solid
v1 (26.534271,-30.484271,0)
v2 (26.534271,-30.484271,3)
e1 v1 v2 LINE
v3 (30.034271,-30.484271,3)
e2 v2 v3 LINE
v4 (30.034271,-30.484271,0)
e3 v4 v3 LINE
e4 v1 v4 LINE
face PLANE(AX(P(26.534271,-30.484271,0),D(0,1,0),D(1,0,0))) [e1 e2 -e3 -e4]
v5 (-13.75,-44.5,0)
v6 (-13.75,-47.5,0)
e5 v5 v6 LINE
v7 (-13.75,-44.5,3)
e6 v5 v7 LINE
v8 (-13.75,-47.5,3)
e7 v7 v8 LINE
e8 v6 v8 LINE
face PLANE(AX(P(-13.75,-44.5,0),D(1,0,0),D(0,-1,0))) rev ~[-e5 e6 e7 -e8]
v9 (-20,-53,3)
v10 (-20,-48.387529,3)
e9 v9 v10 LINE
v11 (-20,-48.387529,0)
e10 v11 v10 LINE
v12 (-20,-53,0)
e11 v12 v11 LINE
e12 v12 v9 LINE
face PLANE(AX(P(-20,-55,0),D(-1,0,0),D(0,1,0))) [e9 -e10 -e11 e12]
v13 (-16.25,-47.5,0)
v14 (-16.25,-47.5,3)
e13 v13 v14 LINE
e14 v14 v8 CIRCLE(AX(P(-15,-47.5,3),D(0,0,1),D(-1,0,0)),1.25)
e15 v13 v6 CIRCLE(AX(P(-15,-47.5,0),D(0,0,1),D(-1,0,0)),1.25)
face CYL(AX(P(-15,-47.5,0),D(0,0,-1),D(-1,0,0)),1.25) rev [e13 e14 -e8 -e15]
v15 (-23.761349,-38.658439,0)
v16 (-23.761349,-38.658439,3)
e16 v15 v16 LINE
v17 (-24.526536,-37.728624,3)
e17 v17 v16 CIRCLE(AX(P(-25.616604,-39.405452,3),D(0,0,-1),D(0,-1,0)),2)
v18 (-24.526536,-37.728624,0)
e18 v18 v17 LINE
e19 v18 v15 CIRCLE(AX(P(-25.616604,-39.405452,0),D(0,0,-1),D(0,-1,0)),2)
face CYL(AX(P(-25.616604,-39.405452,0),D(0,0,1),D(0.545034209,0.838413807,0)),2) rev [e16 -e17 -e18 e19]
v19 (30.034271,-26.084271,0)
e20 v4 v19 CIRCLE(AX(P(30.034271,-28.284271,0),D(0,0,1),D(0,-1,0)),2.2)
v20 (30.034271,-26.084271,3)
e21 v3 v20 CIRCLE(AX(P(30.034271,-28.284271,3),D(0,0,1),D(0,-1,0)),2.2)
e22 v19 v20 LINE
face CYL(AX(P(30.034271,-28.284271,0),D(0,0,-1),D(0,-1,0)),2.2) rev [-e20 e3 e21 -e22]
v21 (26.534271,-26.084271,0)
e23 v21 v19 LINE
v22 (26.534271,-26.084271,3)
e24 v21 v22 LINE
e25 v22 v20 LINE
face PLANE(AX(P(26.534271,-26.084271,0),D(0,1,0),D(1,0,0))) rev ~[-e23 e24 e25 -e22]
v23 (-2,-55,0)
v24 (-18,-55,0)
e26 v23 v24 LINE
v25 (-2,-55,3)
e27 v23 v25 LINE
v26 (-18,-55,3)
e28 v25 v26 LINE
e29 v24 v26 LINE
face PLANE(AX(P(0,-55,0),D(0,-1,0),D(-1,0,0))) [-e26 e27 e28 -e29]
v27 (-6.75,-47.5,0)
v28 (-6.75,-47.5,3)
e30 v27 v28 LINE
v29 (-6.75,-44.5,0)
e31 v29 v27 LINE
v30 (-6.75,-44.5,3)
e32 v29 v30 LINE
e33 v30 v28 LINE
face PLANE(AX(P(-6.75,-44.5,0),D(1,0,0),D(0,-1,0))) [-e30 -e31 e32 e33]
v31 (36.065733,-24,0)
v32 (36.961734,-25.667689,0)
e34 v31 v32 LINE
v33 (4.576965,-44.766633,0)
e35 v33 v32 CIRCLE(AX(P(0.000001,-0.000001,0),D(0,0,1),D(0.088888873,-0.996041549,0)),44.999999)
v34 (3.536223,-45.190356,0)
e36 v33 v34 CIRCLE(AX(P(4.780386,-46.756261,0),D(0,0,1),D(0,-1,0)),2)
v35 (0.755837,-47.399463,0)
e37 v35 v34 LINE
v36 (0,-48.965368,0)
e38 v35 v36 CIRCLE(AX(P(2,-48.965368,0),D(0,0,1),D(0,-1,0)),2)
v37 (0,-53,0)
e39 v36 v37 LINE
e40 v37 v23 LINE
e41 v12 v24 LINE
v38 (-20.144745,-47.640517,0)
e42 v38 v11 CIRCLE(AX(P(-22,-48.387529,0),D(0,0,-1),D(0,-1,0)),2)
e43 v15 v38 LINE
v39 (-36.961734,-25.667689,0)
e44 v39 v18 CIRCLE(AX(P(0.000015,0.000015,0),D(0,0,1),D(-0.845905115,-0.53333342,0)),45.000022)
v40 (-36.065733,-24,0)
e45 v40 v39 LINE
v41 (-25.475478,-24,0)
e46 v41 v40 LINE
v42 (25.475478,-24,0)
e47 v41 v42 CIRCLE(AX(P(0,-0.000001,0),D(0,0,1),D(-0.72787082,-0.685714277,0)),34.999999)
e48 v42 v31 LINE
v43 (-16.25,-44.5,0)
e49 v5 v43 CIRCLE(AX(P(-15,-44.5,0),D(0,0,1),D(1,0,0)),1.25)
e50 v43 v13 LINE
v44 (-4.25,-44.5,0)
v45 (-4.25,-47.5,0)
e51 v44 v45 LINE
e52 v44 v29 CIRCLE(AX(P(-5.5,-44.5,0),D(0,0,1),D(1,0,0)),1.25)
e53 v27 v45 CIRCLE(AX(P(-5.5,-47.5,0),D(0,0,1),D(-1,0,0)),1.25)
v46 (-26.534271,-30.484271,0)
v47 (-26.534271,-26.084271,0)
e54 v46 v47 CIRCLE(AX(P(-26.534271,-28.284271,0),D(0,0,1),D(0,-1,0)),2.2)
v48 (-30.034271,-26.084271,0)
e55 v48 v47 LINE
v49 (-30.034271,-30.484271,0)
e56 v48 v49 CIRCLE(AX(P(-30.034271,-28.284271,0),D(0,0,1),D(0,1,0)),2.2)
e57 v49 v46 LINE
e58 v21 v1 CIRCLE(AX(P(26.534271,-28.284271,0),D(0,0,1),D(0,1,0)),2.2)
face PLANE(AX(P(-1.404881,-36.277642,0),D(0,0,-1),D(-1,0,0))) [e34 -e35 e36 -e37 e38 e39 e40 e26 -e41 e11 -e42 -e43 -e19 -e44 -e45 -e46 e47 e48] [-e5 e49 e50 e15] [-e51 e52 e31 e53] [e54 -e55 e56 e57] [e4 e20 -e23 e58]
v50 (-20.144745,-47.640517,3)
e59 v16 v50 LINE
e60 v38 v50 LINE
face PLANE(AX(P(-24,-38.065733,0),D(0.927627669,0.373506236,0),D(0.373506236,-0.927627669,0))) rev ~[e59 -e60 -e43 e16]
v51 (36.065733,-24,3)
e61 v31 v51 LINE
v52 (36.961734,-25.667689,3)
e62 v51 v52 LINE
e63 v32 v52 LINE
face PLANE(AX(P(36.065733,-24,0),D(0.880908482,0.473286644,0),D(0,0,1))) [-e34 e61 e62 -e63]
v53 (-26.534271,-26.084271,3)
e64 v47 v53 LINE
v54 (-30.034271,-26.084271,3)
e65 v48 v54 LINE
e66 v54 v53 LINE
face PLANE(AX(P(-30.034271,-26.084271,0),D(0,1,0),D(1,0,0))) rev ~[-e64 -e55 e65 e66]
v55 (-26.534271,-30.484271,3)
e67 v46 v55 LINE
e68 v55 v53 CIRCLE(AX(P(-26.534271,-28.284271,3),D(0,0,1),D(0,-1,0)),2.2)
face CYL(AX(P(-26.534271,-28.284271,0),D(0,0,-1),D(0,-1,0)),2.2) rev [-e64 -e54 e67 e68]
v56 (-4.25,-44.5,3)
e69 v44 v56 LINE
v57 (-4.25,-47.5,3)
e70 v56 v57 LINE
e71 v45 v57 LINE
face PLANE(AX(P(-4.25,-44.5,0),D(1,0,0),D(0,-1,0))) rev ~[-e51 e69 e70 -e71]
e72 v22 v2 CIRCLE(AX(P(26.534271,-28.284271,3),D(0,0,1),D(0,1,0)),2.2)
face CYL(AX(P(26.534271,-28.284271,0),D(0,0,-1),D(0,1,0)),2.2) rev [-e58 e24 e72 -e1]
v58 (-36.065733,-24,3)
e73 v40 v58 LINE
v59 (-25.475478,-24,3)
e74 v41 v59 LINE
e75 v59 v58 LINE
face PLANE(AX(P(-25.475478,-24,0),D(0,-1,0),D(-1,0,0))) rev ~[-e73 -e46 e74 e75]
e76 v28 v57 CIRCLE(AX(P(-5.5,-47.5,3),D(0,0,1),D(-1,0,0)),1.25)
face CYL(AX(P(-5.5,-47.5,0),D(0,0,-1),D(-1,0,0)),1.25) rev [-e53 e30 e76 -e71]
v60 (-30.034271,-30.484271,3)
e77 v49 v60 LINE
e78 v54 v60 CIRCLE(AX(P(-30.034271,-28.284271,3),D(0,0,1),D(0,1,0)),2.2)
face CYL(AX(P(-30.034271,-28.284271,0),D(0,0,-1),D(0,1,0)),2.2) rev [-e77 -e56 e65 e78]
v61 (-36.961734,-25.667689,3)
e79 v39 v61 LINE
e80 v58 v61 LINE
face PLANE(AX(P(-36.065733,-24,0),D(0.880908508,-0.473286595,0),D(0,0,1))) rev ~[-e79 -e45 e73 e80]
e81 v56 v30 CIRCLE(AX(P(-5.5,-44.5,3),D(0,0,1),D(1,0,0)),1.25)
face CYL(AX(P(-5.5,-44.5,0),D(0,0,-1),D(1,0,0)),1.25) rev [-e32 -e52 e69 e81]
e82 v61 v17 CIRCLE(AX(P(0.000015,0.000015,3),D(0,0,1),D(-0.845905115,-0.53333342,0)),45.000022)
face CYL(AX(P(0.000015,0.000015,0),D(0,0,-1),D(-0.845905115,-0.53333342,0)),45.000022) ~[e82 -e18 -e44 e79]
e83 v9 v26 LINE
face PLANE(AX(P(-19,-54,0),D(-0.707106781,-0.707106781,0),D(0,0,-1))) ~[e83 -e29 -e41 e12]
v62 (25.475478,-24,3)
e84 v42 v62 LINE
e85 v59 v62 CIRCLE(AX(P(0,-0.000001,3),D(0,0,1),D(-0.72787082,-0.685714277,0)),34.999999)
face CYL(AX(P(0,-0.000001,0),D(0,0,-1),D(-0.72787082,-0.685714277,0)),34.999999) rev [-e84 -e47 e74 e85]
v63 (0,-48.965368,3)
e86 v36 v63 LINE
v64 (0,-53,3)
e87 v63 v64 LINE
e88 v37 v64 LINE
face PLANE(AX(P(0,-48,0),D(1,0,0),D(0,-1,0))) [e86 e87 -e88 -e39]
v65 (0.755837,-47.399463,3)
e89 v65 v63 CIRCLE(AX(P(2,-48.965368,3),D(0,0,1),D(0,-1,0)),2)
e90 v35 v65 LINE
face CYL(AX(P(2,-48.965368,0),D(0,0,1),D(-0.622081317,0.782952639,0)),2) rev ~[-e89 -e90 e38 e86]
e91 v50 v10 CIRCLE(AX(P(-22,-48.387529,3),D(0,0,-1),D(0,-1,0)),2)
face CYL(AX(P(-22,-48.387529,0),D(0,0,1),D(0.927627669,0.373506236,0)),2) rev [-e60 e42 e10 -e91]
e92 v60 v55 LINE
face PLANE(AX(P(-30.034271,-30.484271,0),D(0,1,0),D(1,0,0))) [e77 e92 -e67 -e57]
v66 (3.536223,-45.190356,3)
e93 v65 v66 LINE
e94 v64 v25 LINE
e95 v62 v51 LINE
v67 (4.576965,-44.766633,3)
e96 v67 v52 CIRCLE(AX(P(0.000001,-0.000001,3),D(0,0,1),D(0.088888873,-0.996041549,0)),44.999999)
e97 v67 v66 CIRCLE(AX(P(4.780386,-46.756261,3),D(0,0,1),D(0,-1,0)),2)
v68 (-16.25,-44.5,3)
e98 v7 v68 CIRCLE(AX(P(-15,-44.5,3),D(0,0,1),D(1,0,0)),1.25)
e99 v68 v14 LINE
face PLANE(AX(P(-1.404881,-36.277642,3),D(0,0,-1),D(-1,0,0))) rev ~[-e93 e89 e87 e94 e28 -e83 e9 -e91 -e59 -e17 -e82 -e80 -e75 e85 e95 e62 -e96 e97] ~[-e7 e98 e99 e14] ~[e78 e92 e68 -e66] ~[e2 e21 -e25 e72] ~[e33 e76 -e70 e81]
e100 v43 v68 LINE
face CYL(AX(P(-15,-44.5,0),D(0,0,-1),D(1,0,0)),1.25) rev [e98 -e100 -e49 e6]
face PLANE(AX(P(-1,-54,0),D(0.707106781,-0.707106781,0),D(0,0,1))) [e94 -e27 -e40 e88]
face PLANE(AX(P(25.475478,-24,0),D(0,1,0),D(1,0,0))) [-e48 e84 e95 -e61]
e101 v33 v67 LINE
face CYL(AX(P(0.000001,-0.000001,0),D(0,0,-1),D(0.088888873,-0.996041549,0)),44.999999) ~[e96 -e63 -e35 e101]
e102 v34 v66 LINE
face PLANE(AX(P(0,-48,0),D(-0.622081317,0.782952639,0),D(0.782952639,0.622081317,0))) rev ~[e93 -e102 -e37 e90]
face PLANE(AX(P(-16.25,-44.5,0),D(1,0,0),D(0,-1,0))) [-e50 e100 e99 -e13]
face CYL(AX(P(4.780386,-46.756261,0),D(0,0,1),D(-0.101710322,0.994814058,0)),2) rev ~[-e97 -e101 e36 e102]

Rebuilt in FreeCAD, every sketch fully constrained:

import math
import FreeCAD as App
import Part
import Sketcher


def edges_at(feature, points):
    """Names of the edges that pass closest to the given points."""
    edges = feature.Shape.Edges
    near = lambda p: min(range(len(edges)), key=lambda i: edges[i].distToShape(Part.Vertex(*p))[0])
    return sorted({f"Edge{near(p) + 1}" for p in points})

doc = App.newDocument("Part")
body = doc.addObject("PartDesign::Body", "Body")

# Sketch on XY plane
sketch1 = body.newObject("Sketcher::SketchObject", "Sketch")
sketch1.AttachmentSupport = (doc.getObject("XY_Plane"), [""])
sketch1.MapMode = "FlatFace"
sketch1.addGeometry([
    Part.ArcOfCircle(Part.Circle(App.Vector(0, -0.000001, 0), App.Vector(0, 0, 1), 34.999999), math.radians(-136.708193), math.radians(-43.291807)),  # 0
    Part.LineSegment(App.Vector(-25.475478, -24, 0), App.Vector(-38.065733, -24, 0)),  # 1
    Part.ArcOfCircle(Part.Circle(App.Vector(0.000015, 0.000015, 0), App.Vector(0, 0, 1), 45.000022), math.radians(-147.769042), math.radians(-122.230958)),  # 2
    Part.LineSegment(App.Vector(-24, -38.065733, 0), App.Vector(-20, -48, 0)),  # 3
    Part.LineSegment(App.Vector(-20, -48, 0), App.Vector(-20, -55, 0)),  # 4
    Part.LineSegment(App.Vector(-20, -55, 0), App.Vector(0, -55, 0)),  # 5
    Part.LineSegment(App.Vector(0, -55, 0), App.Vector(0, -48, 0)),  # 6
    Part.LineSegment(App.Vector(0, -48, 0), App.Vector(4, -44.82187, 0)),  # 7
    Part.ArcOfCircle(Part.Circle(App.Vector(0.000001, -0.000001, 0), App.Vector(0, 0, 1), 44.999999), math.radians(-84.900312), math.radians(-32.230951)),  # 8
    Part.LineSegment(App.Vector(38.065733, -24, 0), App.Vector(25.475478, -24, 0)),  # 9
    Part.LineSegment(App.Vector(-4.25, -44.5, 0), App.Vector(-4.25, -47.5, 0)),  # 10
    Part.ArcOfCircle(Part.Circle(App.Vector(-5.5, -47.5, 0), App.Vector(0, 0, 1), 1.25), math.radians(180), math.radians(360)),  # 11
    Part.LineSegment(App.Vector(-6.75, -47.5, 0), App.Vector(-6.75, -44.5, 0)),  # 12
    Part.ArcOfCircle(Part.Circle(App.Vector(-5.5, -44.5, 0), App.Vector(0, 0, 1), 1.25), math.radians(0), math.radians(180)),  # 13
    Part.LineSegment(App.Vector(-13.75, -44.5, 0), App.Vector(-13.75, -47.5, 0)),  # 14
    Part.ArcOfCircle(Part.Circle(App.Vector(-15, -47.5, 0), App.Vector(0, 0, 1), 1.25), math.radians(180), math.radians(360)),  # 15
    Part.LineSegment(App.Vector(-16.25, -47.5, 0), App.Vector(-16.25, -44.5, 0)),  # 16
    Part.ArcOfCircle(Part.Circle(App.Vector(-15, -44.5, 0), App.Vector(0, 0, 1), 1.25), math.radians(0), math.radians(180)),  # 17
    Part.LineSegment(App.Vector(26.534271, -26.084271, 0), App.Vector(30.034271, -26.084271, 0)),  # 18
    Part.ArcOfCircle(Part.Circle(App.Vector(30.034271, -28.284271, 0), App.Vector(0, 0, 1), 2.2), math.radians(-90), math.radians(90)),  # 19
    Part.LineSegment(App.Vector(30.034271, -30.484271, 0), App.Vector(26.534271, -30.484271, 0)),  # 20
    Part.ArcOfCircle(Part.Circle(App.Vector(26.534271, -28.284271, 0), App.Vector(0, 0, 1), 2.2), math.radians(90), math.radians(270)),  # 21
    Part.LineSegment(App.Vector(-30.034271, -26.084271, 0), App.Vector(-26.534271, -26.084271, 0)),  # 22
    Part.ArcOfCircle(Part.Circle(App.Vector(-26.534271, -28.284271, 0), App.Vector(0, 0, 1), 2.2), math.radians(-90), math.radians(90)),  # 23
    Part.LineSegment(App.Vector(-26.534271, -30.484271, 0), App.Vector(-30.034271, -30.484271, 0)),  # 24
    Part.ArcOfCircle(Part.Circle(App.Vector(-30.034271, -28.284271, 0), App.Vector(0, 0, 1), 2.2), math.radians(90), math.radians(270)),  # 25
], False)
sketch1.addConstraint([
    Sketcher.Constraint("Coincident", 0, 1, 1, 1),
    Sketcher.Constraint("Coincident", 1, 2, 2, 1),
    Sketcher.Constraint("Coincident", 2, 2, 3, 1),
    Sketcher.Constraint("Coincident", 3, 2, 4, 1),
    Sketcher.Constraint("Coincident", 4, 2, 5, 1),
    Sketcher.Constraint("Coincident", 5, 2, 6, 1),
    Sketcher.Constraint("Coincident", 6, 2, 7, 1),
    Sketcher.Constraint("Coincident", 7, 2, 8, 1),
    Sketcher.Constraint("Coincident", 8, 2, 9, 1),
    Sketcher.Constraint("Coincident", 9, 2, 0, 2),
    Sketcher.Constraint("Tangent", 10, 2, 11, 2),
    Sketcher.Constraint("Tangent", 11, 1, 12, 1),
    Sketcher.Constraint("Tangent", 12, 2, 13, 2),
    Sketcher.Constraint("Tangent", 13, 1, 10, 1),
    Sketcher.Constraint("Tangent", 14, 2, 15, 2),
    Sketcher.Constraint("Tangent", 15, 1, 16, 1),
    Sketcher.Constraint("Tangent", 16, 2, 17, 2),
    Sketcher.Constraint("Tangent", 17, 1, 14, 1),
    Sketcher.Constraint("Tangent", 18, 2, 19, 2),
    Sketcher.Constraint("Tangent", 19, 1, 20, 1),
    Sketcher.Constraint("Tangent", 20, 2, 21, 2),
    Sketcher.Constraint("Tangent", 21, 1, 18, 1),
    Sketcher.Constraint("Tangent", 22, 2, 23, 2),
    Sketcher.Constraint("Tangent", 23, 1, 24, 1),
    Sketcher.Constraint("Tangent", 24, 2, 25, 2),
    Sketcher.Constraint("Tangent", 25, 1, 22, 1),
    Sketcher.Constraint("Horizontal", 1),
    Sketcher.Constraint("Vertical", 4),
    Sketcher.Constraint("Horizontal", 5),
    Sketcher.Constraint("Vertical", 6),
    Sketcher.Constraint("Horizontal", 9),
    Sketcher.Constraint("Vertical", 10),
    Sketcher.Constraint("Vertical", 12),
    Sketcher.Constraint("Vertical", 14),
    Sketcher.Constraint("Vertical", 16),
    Sketcher.Constraint("Horizontal", 18),
    Sketcher.Constraint("Horizontal", 20),
    Sketcher.Constraint("Horizontal", 22),
    Sketcher.Constraint("Horizontal", 24),
    Sketcher.Constraint("Coincident", 0, 3, -1, 1),
    Sketcher.Constraint("Coincident", 8, 3, -1, 1),
    Sketcher.Constraint("Equal", 13, 15),
    Sketcher.Constraint("Equal", 21, 23),
    Sketcher.Constraint("Symmetric", 21, 3, 23, 3, -2),
    Sketcher.Constraint("Symmetric", 1, 2, 8, 2, -2),
    Sketcher.Constraint("PointOnObject", 5, 2, -2),
    Sketcher.Constraint("Horizontal", 11, 3, 15, 3),
    Sketcher.Constraint("Horizontal", 13, 3, 17, 3),
    Sketcher.Constraint("Horizontal", 3, 2, 6, 2),
    Sketcher.Constraint("Equal", 20, 22),
    Sketcher.Constraint("Radius", 0, 34.999999),
    Sketcher.Constraint("Radius", 8, 44.999999),
    Sketcher.Constraint("Radius", 19, 2.2),
    Sketcher.Constraint("DistanceX", 5, 1, 5, 2, 20.0),
    Sketcher.Constraint("DistanceY", 4, 2, 4, 1, 7.0),
    Sketcher.Constraint("DistanceY", 10, 2, 10, 1, 3.0),
    Sketcher.Constraint("Radius", 11, 1.25),
    Sketcher.Constraint("DistanceX", 18, 1, 18, 2, 3.5),
    Sketcher.Constraint("DistanceX", 15, 3, -1, 1, 15.0),
    Sketcher.Constraint("DistanceY", 0, 1, -1, 1, 24.0),
    Sketcher.Constraint("DistanceX", 2, 2, -1, 1, 24.0),
    Sketcher.Constraint("DistanceY", 3, 2, -1, 1, 48.0),
    Sketcher.Constraint("DistanceX", -1, 1, 7, 2, 4.0),
    Sketcher.Constraint("DistanceX", 14, 2, 11, 1, 7.0),
    Sketcher.Constraint("DistanceY", 11, 3, -1, 1, 47.5),
    Sketcher.Constraint("Radius", 2, 45.000022),
    Sketcher.Constraint("DistanceY", 7, 2, 18, 2, 18.737599),
    Sketcher.Constraint("DistanceX", -1, 1, 19, 3, 30.034271),
    Sketcher.Constraint("DistanceY", 2, 2, 23, 3, 9.781462),
])
pad1 = body.newObject("PartDesign::Pad", "Pad")
pad1.Profile = sketch1
pad1.Length = 3
doc.recompute()

chamfer = body.newObject("PartDesign::Chamfer", "Chamfer")
chamfer.Base = (pad1, edges_at(pad1, [
    (0, -55, 1.5),
    (38.066, -24, 1.5),
    (-38.066, -24, 1.5),
    (-20, -55, 1.5),
]))
chamfer.Size = 2
doc.recompute()

fillet = body.newObject("PartDesign::Fillet", "Fillet")
fillet.Base = (chamfer, edges_at(chamfer, [
    (-20, -48, 1.5),
    (-24, -38.066, 1.5),
    (0, -48, 1.5),
    (4, -44.822, 1.5),
]))
fillet.Radius = 2

doc.recompute()
